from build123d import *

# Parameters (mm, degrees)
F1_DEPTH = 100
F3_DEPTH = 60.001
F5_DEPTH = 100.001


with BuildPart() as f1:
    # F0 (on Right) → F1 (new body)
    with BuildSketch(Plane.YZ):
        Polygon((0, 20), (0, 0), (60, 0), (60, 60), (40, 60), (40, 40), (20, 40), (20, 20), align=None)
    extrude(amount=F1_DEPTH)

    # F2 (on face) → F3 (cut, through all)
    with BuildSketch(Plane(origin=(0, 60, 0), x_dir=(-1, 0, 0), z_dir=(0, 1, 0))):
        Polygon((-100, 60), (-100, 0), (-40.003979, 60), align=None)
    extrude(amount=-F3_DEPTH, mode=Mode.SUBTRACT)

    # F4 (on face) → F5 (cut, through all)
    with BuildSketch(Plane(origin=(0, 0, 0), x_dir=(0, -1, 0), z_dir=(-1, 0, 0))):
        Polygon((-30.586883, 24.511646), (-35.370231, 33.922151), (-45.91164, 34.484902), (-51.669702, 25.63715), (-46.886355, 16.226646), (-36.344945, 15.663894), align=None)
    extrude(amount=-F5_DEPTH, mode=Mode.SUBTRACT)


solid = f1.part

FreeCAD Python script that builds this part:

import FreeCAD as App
import Part
import Sketcher

doc = App.newDocument("Part")
body = doc.addObject("PartDesign::Body", "Body")

# Sketch on YZ plane
sketch1 = body.newObject("Sketcher::SketchObject", "Sketch")
sketch1.AttachmentSupport = (doc.getObject("YZ_Plane"), [""])
sketch1.MapMode = "FlatFace"
sketch1.addGeometry([
    Part.LineSegment(App.Vector(0, 20, 0), App.Vector(0, 0, 0)),  # 0
    Part.LineSegment(App.Vector(0, 0, 0), App.Vector(60, 0, 0)),  # 1
    Part.LineSegment(App.Vector(60, 0, 0), App.Vector(60, 60, 0)),  # 2
    Part.LineSegment(App.Vector(60, 60, 0), App.Vector(40, 60, 0)),  # 3
    Part.LineSegment(App.Vector(40, 60, 0), App.Vector(40, 40, 0)),  # 4
    Part.LineSegment(App.Vector(40, 40, 0), App.Vector(20, 40, 0)),  # 5
    Part.LineSegment(App.Vector(20, 40, 0), App.Vector(20, 20, 0)),  # 6
    Part.LineSegment(App.Vector(20, 20, 0), App.Vector(0, 20, 0)),  # 7
], False)
sketch1.addConstraint([
    Sketcher.Constraint("Coincident", 0, 2, 1, 1),
    Sketcher.Constraint("Coincident", 1, 2, 2, 1),
    Sketcher.Constraint("Coincident", 2, 2, 3, 1),
    Sketcher.Constraint("Coincident", 3, 2, 4, 1),
    Sketcher.Constraint("Coincident", 4, 2, 5, 1),
    Sketcher.Constraint("Coincident", 5, 2, 6, 1),
    Sketcher.Constraint("Coincident", 6, 2, 7, 1),
    Sketcher.Constraint("Coincident", 7, 2, 0, 1),
    Sketcher.Constraint("Vertical", 0),
    Sketcher.Constraint("Horizontal", 1),
    Sketcher.Constraint("Vertical", 2),
    Sketcher.Constraint("Horizontal", 3),
    Sketcher.Constraint("Vertical", 4),
    Sketcher.Constraint("Horizontal", 5),
    Sketcher.Constraint("Vertical", 6),
    Sketcher.Constraint("Horizontal", 7),
    Sketcher.Constraint("Coincident", 0, 2, -1, 1),
    Sketcher.Constraint("Equal", 3, 5),
    Sketcher.Constraint("Equal", 5, 7),
    Sketcher.Constraint("Equal", 7, 0),
    Sketcher.Constraint("Equal", 1, 2),
    Sketcher.Constraint("Equal", 0, 4),
    Sketcher.Constraint("DistanceX", 1, 1, 1, 2, 60.0),
])
pad1 = body.newObject("PartDesign::Pad", "Pad")
pad1.Profile = sketch1
pad1.Length = 100

# Sketch on XZ plane
sketch2 = body.newObject("Sketcher::SketchObject", "Sketch001")
sketch2.AttachmentSupport = (doc.getObject("XZ_Plane"), [""])
sketch2.MapMode = "FlatFace"
sketch2.AttachmentOffset = App.Placement(App.Vector(0, 0, -60), App.Rotation())
sketch2.addGeometry([
    Part.LineSegment(App.Vector(100, 60, 0), App.Vector(100, 0, 0)),
    Part.LineSegment(App.Vector(100, 0, 0), App.Vector(40, 60, 0)),
    Part.LineSegment(App.Vector(40, 60, 0), App.Vector(100, 60, 0)),
], False)
sketch2.addConstraint([
    Sketcher.Constraint("Coincident", 0, 2, 1, 1),
    Sketcher.Constraint("Coincident", 1, 2, 2, 1),
    Sketcher.Constraint("Coincident", 2, 2, 0, 1),
    Sketcher.Constraint("Vertical", 0),
    Sketcher.Constraint("Horizontal", 2),
    Sketcher.Constraint("PointOnObject", 0, 2, -1),
    Sketcher.Constraint("DistanceY", 0, 2, 0, 1, 60.0),
    Sketcher.Constraint("DistanceX", -1, 1, 0, 2, 100.0),
    Sketcher.Constraint("Distance", 1, 84.85),
])
pocket1 = body.newObject("PartDesign::Pocket", "Pocket")
pocket1.Profile = sketch2
pocket1.Type = "ThroughAll"
pocket1.Reversed = True

# Sketch on YZ plane
sketch3 = body.newObject("Sketcher::SketchObject", "Sketch002")
sketch3.AttachmentSupport = (doc.getObject("YZ_Plane"), [""])
sketch3.MapMode = "FlatFace"
sketch3.addGeometry([
    Part.LineSegment(App.Vector(31, 25, 0), App.Vector(35, 34, 0)),  # 0
    Part.LineSegment(App.Vector(35, 34, 0), App.Vector(46, 34, 0)),  # 1
    Part.LineSegment(App.Vector(46, 34, 0), App.Vector(52, 26, 0)),  # 2
    Part.LineSegment(App.Vector(52, 26, 0), App.Vector(47, 16, 0)),  # 3
    Part.LineSegment(App.Vector(47, 16, 0), App.Vector(36, 16, 0)),  # 4
    Part.LineSegment(App.Vector(36, 16, 0), App.Vector(31, 25, 0)),  # 5
], False)
sketch3.addConstraint([
    Sketcher.Constraint("Coincident", 0, 2, 1, 1),
    Sketcher.Constraint("Coincident", 1, 2, 2, 1),
    Sketcher.Constraint("Coincident", 2, 2, 3, 1),
    Sketcher.Constraint("Coincident", 3, 2, 4, 1),
    Sketcher.Constraint("Coincident", 4, 2, 5, 1),
    Sketcher.Constraint("Coincident", 5, 2, 0, 1),
    Sketcher.Constraint("Parallel", 0, 3),
    Sketcher.Constraint("Parallel", 1, 4),
    Sketcher.Constraint("Parallel", 2, 5),
    Sketcher.Constraint("Equal", 0, 1),
    Sketcher.Constraint("Equal", 1, 2),
    Sketcher.Constraint("Equal", 2, 3),
    Sketcher.Constraint("DistanceY", 2, 2, 0, 2, 8.285001),
    Sketcher.Constraint("DistanceY", -1, 1, 1, 2, 34.484902),
    Sketcher.Constraint("Distance", 0, 10.556421),
    Sketcher.Constraint("DistanceX", -1, 1, 0, 2, 35.370231),
    Sketcher.Constraint("DistanceY", -1, 1, 0, 2, 33.922151),
    Sketcher.Constraint("DistanceX", 5, 2, 2, 2, 21.082819),
])
pocket2 = body.newObject("PartDesign::Pocket", "Pocket001")
pocket2.Profile = sketch3
pocket2.Type = "ThroughAll"
pocket2.Reversed = True

doc.recompute()
